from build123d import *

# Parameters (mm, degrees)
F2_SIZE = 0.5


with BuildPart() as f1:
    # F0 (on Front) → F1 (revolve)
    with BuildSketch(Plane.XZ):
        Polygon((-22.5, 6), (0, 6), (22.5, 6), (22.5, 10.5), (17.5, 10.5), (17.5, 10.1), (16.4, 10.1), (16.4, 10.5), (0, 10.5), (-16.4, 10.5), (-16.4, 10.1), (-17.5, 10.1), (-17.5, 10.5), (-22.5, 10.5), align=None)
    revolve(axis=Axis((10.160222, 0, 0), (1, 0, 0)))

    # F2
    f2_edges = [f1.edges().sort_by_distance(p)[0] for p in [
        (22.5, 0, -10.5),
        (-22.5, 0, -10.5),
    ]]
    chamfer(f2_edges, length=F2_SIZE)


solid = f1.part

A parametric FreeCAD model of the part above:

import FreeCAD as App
import Part
import Sketcher
Q = App.Units.Quantity


def edges_at(feature, points):
    """Names of the edges that pass closest to the given points."""
    edges = feature.Shape.Edges
    near = lambda p: min(range(len(edges)), key=lambda i: edges[i].distToShape(Part.Vertex(*p))[0])
    return sorted({f"Edge{near(p) + 1}" for p in points})

doc = App.newDocument("Part")
body = doc.addObject("PartDesign::Body", "Body")

sketch1 = doc.addObject("Sketcher::SketchObject", "Sketch")
body.addObject(sketch1)
sketch1.AttachmentSupport = (doc.XZ_Plane, [""])
sketch1.MapMode = "FlatFace"
sketch1.addGeometry([
    Part.LineSegment(App.Vector(-22.5, 6, 0), App.Vector(22.5, 6, 0)),
    Part.LineSegment(App.Vector(22.5, 6, 0), App.Vector(22.5, 10.5, 0)),
    Part.LineSegment(App.Vector(22.5, 10.5, 0), App.Vector(17.5, 10.5, 0)),
    Part.LineSegment(App.Vector(17.5, 10.5, 0), App.Vector(17.5, 10.1, 0)),
    Part.LineSegment(App.Vector(17.5, 10.1, 0), App.Vector(16.4, 10.1, 0)),
    Part.LineSegment(App.Vector(16.4, 10.1, 0), App.Vector(16.4, 10.5, 0)),
    Part.LineSegment(App.Vector(16.4, 10.5, 0), App.Vector(-16.4, 10.5, 0)),
    Part.LineSegment(App.Vector(-16.4, 10.5, 0), App.Vector(-16.4, 10.1, 0)),
    Part.LineSegment(App.Vector(-16.4, 10.1, 0), App.Vector(-17.5, 10.1, 0)),
    Part.LineSegment(App.Vector(-17.5, 10.1, 0), App.Vector(-17.5, 10.5, 0)),
    Part.LineSegment(App.Vector(-17.5, 10.5, 0), App.Vector(-22.5, 10.5, 0)),
    Part.LineSegment(App.Vector(-22.5, 10.5, 0), App.Vector(-22.5, 6, 0)),
], False)
sketch1.addConstraint([
    Sketcher.Constraint("Coincident", 0, 2, 1, 1),
    Sketcher.Constraint("Coincident", 1, 2, 2, 1),
    Sketcher.Constraint("Coincident", 2, 2, 3, 1),
    Sketcher.Constraint("Coincident", 3, 2, 4, 1),
    Sketcher.Constraint("Coincident", 4, 2, 5, 1),
    Sketcher.Constraint("Coincident", 5, 2, 6, 1),
    Sketcher.Constraint("Coincident", 6, 2, 7, 1),
    Sketcher.Constraint("Coincident", 7, 2, 8, 1),
    Sketcher.Constraint("Coincident", 8, 2, 9, 1),
    Sketcher.Constraint("Coincident", 9, 2, 10, 1),
    Sketcher.Constraint("Coincident", 10, 2, 11, 1),
    Sketcher.Constraint("Coincident", 11, 2, 0, 1),
    Sketcher.Constraint("Horizontal", 0),
    Sketcher.Constraint("Vertical", 1),
    Sketcher.Constraint("Horizontal", 2),
    Sketcher.Constraint("Vertical", 3),
    Sketcher.Constraint("Horizontal", 4),
    Sketcher.Constraint("Vertical", 5),
    Sketcher.Constraint("Horizontal", 6),
    Sketcher.Constraint("Vertical", 7),
    Sketcher.Constraint("Horizontal", 8),
    Sketcher.Constraint("Vertical", 9),
    Sketcher.Constraint("Horizontal", 10),
    Sketcher.Constraint("Vertical", 11),
    Sketcher.Constraint("Symmetric", 4, 2, 7, 2, -2),
    Sketcher.Constraint("Symmetric", 2, 2, 9, 2, -2),
    Sketcher.Constraint("Horizontal", 2, 2, 5, 2),
    Sketcher.Constraint("Equal", 2, 10),
    Sketcher.Constraint("DistanceX", 0, 1, 0, 2, Q("45 mm")),
    Sketcher.Constraint("DistanceX", 2, 2, 2, 1, Q("5 mm")),
    Sketcher.Constraint("DistanceX", 4, 2, 4, 1, Q("1.1 mm")),
    Sketcher.Constraint("DistanceY", 1, 1, 1, 2, Q("4.5 mm")),
    Sketcher.Constraint("DistanceY", 3, 2, 3, 1, Q("0.4 mm")),
    Sketcher.Constraint("DistanceY", -1, 1, 0, 2, Q("6 mm")),
])
revolution = doc.addObject("PartDesign::Revolution", "Revolution")
body.addObject(revolution)
revolution.Profile = sketch1
revolution.ReferenceAxis = (sketch1, ["H_Axis"])
revolution.Angle = 360
doc.recompute()

chamfer = doc.addObject("PartDesign::Chamfer", "Chamfer")
body.addObject(chamfer)
chamfer.Base = (revolution, edges_at(revolution, [(22.5, 0, -10.5), (-22.5, 0, -10.5)]))
chamfer.Size = 0.5

doc.recompute()
